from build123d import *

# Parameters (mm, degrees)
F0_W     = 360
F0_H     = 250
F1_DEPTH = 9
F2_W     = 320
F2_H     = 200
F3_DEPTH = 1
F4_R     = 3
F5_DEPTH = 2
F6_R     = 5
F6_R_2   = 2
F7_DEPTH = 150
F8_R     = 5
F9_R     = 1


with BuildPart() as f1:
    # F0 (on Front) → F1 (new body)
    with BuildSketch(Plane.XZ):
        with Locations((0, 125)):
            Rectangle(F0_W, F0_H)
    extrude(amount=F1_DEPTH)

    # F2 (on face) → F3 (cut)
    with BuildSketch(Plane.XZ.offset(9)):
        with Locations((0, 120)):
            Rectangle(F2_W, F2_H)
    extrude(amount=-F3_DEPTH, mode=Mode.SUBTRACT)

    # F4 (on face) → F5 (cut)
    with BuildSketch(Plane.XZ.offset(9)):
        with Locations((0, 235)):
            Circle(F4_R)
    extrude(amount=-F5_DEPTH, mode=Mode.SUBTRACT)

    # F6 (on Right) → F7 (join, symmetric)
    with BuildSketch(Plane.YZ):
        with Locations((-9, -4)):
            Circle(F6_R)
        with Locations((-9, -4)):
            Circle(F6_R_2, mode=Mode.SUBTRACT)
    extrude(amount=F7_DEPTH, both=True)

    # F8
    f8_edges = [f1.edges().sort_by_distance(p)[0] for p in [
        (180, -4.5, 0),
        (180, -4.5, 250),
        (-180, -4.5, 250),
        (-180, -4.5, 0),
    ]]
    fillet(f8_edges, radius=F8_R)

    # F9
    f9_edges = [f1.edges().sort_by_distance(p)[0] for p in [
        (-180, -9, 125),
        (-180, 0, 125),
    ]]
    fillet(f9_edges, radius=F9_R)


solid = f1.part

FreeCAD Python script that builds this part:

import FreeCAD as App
import Part
import Sketcher


def edges_at(feature, points):
    """Names of the edges that pass closest to the given points."""
    edges = feature.Shape.Edges
    near = lambda p: min(range(len(edges)), key=lambda i: edges[i].distToShape(Part.Vertex(*p))[0])
    return sorted({f"Edge{near(p) + 1}" for p in points})


def add_polygon(sketch, points):
    """Adds a closed chain of lines whose ends are joined by coincident constraints."""
    first, n = sketch.GeometryCount, len(points)
    for a, b in zip(points, points[1:] + points[:1]):
        sketch.addGeometry(Part.LineSegment(App.Vector(*a, 0), App.Vector(*b, 0)), False)
    for i in range(n):
        sketch.addConstraint(Sketcher.Constraint("Coincident", first + i, 2, first + (i + 1) % n, 1))

doc = App.newDocument("Part")
body = doc.addObject("PartDesign::Body", "Body")

# Sketch on XZ plane
sketch1 = body.newObject("Sketcher::SketchObject", "Sketch")
sketch1.AttachmentSupport = (doc.getObject("XZ_Plane"), [""])
sketch1.MapMode = "FlatFace"
add_polygon(sketch1, [(-180, 250), (-180, 0), (180, 0), (180, 250)])  # lines 0-3
sketch1.addConstraint(Sketcher.Constraint("Vertical", 0))
sketch1.addConstraint(Sketcher.Constraint("Horizontal", 1))
sketch1.addConstraint(Sketcher.Constraint("Vertical", 2))
sketch1.addConstraint(Sketcher.Constraint("Horizontal", 3))
sketch1.addConstraint(Sketcher.Constraint("Symmetric", 0, 2, 1, 2, -1, 1))
sketch1.addConstraint(Sketcher.Constraint("DistanceX", 1, 1, 1, 2, 360.0))
sketch1.addConstraint(Sketcher.Constraint("DistanceY", 0, 2, 0, 1, 250.0))
pad1 = body.newObject("PartDesign::Pad", "Pad")
pad1.Profile = sketch1
pad1.Length = 9

# Sketch on XZ plane
sketch2 = body.newObject("Sketcher::SketchObject", "Sketch001")
sketch2.AttachmentSupport = (doc.getObject("XZ_Plane"), [""])
sketch2.MapMode = "FlatFace"
sketch2.AttachmentOffset = App.Placement(App.Vector(0, 0, 9), App.Rotation())
add_polygon(sketch2, [(-160, 220), (-160, 20), (160, 20), (160, 220)])  # lines 0-3
sketch2.addConstraint(Sketcher.Constraint("Vertical", 0))
sketch2.addConstraint(Sketcher.Constraint("Horizontal", 1))
sketch2.addConstraint(Sketcher.Constraint("Vertical", 2))
sketch2.addConstraint(Sketcher.Constraint("Horizontal", 3))
sketch2.addConstraint(Sketcher.Constraint("DistanceX", 1, 1, 1, 2, 320.0))
sketch2.addConstraint(Sketcher.Constraint("DistanceY", 0, 2, 0, 1, 200.0))
sketch2.addConstraint(Sketcher.Constraint("DistanceX", 0, 2, -1, 1, 160.0))
sketch2.addConstraint(Sketcher.Constraint("DistanceY", -1, 1, 0, 2, 20.0))
pocket1 = body.newObject("PartDesign::Pocket", "Pocket")
pocket1.Profile = sketch2
pocket1.Length = 1

# Sketch on XZ plane
sketch3 = body.newObject("Sketcher::SketchObject", "Sketch002")
sketch3.AttachmentSupport = (doc.getObject("XZ_Plane"), [""])
sketch3.MapMode = "FlatFace"
sketch3.AttachmentOffset = App.Placement(App.Vector(0, 0, 9), App.Rotation())
sketch3.addGeometry(Part.Circle(App.Vector(0, 235, 0), App.Vector(0, 0, 1), 3), False)
sketch3.addConstraint(Sketcher.Constraint("PointOnObject", 0, 3, -2))
sketch3.addConstraint(Sketcher.Constraint("Diameter", 0, 6.0))
sketch3.addConstraint(Sketcher.Constraint("DistanceY", -1, 1, 0, 3, 235.0))
pocket2 = body.newObject("PartDesign::Pocket", "Pocket001")
pocket2.Profile = sketch3
pocket2.Length = 2

# Sketch on YZ plane
sketch4 = body.newObject("Sketcher::SketchObject", "Sketch003")
sketch4.AttachmentSupport = (doc.getObject("YZ_Plane"), [""])
sketch4.MapMode = "FlatFace"
sketch4.addGeometry(Part.Circle(App.Vector(-9, -4, 0), App.Vector(0, 0, 1), 5), False)
sketch4.addGeometry(Part.Circle(App.Vector(-9, -4, 0), App.Vector(0, 0, 1), 2), False)
sketch4.addConstraint(Sketcher.Constraint("Coincident", 1, 3, 0, 3))
sketch4.addConstraint(Sketcher.Constraint("Diameter", 0, 10.0))
sketch4.addConstraint(Sketcher.Constraint("Diameter", 1, 4.0))
sketch4.addConstraint(Sketcher.Constraint("DistanceX", 0, 3, -1, 1, 9.0))
sketch4.addConstraint(Sketcher.Constraint("DistanceY", 0, 3, -1, 1, 4.0))
pad2 = body.newObject("PartDesign::Pad", "Pad001")
pad2.Profile = sketch4
pad2.Length = 300
pad2.Midplane = True
doc.recompute()

fillet = body.newObject("PartDesign::Fillet", "Fillet")
fillet.Base = (pad2, edges_at(pad2, [
    (180, -4.5, 0),
    (180, -4.5, 250),
    (-180, -4.5, 250),
    (-180, -4.5, 0),
]))
fillet.Radius = 5
doc.recompute()

fillet2 = body.newObject("PartDesign::Fillet", "Fillet001")
fillet2.Base = (fillet, edges_at(fillet, [(-180, -9, 125), (-180, 0, 125)]))
fillet2.Radius = 1

doc.recompute()
